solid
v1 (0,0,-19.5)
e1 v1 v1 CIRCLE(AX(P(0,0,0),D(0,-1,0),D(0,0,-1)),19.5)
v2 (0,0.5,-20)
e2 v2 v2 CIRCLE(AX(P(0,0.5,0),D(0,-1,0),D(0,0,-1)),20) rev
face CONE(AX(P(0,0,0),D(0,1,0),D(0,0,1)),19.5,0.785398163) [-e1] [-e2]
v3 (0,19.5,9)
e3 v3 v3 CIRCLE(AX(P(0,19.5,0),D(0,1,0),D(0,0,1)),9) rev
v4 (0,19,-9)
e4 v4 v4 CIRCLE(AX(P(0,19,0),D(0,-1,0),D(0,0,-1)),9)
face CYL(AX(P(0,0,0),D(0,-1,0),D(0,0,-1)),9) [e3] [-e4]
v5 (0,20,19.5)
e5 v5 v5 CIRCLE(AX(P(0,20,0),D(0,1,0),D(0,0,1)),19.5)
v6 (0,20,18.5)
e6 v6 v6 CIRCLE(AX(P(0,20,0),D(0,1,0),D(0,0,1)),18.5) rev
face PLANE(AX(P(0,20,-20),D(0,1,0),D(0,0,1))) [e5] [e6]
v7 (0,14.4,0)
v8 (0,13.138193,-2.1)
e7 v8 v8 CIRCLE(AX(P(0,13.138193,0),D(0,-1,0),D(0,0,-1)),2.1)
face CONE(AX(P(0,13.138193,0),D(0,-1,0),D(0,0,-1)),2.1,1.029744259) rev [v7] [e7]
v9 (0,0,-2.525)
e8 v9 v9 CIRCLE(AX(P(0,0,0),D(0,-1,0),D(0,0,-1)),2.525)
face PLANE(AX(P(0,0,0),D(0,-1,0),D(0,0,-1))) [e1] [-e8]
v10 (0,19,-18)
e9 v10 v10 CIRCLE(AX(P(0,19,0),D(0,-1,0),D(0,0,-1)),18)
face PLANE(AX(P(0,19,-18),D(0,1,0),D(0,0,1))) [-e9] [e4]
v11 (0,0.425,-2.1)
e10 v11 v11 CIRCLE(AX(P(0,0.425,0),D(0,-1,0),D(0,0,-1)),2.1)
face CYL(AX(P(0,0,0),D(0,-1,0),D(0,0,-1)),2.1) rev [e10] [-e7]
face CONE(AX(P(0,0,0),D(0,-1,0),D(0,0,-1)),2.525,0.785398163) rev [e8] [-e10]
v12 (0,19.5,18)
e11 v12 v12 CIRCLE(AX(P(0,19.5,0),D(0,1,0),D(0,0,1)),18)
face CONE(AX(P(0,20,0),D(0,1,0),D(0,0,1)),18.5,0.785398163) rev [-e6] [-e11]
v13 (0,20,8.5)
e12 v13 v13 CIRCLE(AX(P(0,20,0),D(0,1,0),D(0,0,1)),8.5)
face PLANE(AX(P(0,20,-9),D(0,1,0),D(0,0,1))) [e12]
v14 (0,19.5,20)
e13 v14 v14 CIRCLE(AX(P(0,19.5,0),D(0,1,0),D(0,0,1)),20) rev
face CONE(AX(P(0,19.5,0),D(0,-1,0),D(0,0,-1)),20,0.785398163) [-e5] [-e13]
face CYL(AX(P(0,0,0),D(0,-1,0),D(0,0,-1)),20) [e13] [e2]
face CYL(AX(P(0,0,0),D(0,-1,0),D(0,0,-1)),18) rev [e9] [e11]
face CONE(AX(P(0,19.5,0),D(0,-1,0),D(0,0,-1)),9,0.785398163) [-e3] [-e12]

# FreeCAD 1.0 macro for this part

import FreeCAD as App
import Part
import Sketcher
Q = App.Units.Quantity


def edges_at(feature, points):
    """Names of the edges that pass closest to the given points."""
    edges = feature.Shape.Edges
    near = lambda p: min(range(len(edges)), key=lambda i: edges[i].distToShape(Part.Vertex(*p))[0])
    return sorted({f"Edge{near(p) + 1}" for p in points})

doc = App.newDocument("Part")
body = doc.addObject("PartDesign::Body", "Body")

# Sketch on YZ plane
sketch1 = body.newObject("Sketcher::SketchObject", "Sketch")
sketch1.AttachmentSupport = (doc.getObject("YZ_Plane"), [""])
sketch1.MapMode = "FlatFace"
sketch1.addGeometry([
    Part.LineSegment(App.Vector(0, 0, 0), App.Vector(0, -20, 0)),  # 0
    Part.LineSegment(App.Vector(0, -20, 0), App.Vector(20, -20, 0)),  # 1
    Part.LineSegment(App.Vector(20, -20, 0), App.Vector(20, -18, 0)),  # 2
    Part.LineSegment(App.Vector(20, -18, 0), App.Vector(19, -18, 0)),  # 3
    Part.LineSegment(App.Vector(19, -18, 0), App.Vector(19, -9, 0)),  # 4
    Part.LineSegment(App.Vector(19, -9, 0), App.Vector(20, -9, 0)),  # 5
    Part.LineSegment(App.Vector(20, -9, 0), App.Vector(20, 0, 0)),  # 6
    Part.LineSegment(App.Vector(20, 0, 0), App.Vector(0, 0, 0)),  # 7
], False)
sketch1.addConstraint([
    Sketcher.Constraint("Coincident", 0, 2, 1, 1),
    Sketcher.Constraint("Coincident", 1, 2, 2, 1),
    Sketcher.Constraint("Coincident", 2, 2, 3, 1),
    Sketcher.Constraint("Coincident", 3, 2, 4, 1),
    Sketcher.Constraint("Coincident", 4, 2, 5, 1),
    Sketcher.Constraint("Coincident", 5, 2, 6, 1),
    Sketcher.Constraint("Coincident", 6, 2, 7, 1),
    Sketcher.Constraint("Coincident", 7, 2, 0, 1),
    Sketcher.Constraint("Vertical", 0),
    Sketcher.Constraint("Horizontal", 1),
    Sketcher.Constraint("Vertical", 2),
    Sketcher.Constraint("Horizontal", 3),
    Sketcher.Constraint("Vertical", 4),
    Sketcher.Constraint("Horizontal", 5),
    Sketcher.Constraint("Vertical", 6),
    Sketcher.Constraint("Horizontal", 7),
    Sketcher.Constraint("Coincident", 7, 2, -1, 1),
    Sketcher.Constraint("Vertical", 2, 2, 5, 2),
    Sketcher.Constraint("Equal", 7, 0),
    Sketcher.Constraint("Equal", 4, 6),
    Sketcher.Constraint("DistanceX", 1, 1, 1, 2, Q("20 mm")),
    Sketcher.Constraint("DistanceX", 3, 2, 3, 1, Q("1 mm")),
    Sketcher.Constraint("DistanceY", 2, 1, 2, 2, Q("2 mm")),
])
revolution = body.newObject("PartDesign::Revolution", "Revolution")
revolution.Profile = sketch1
revolution.ReferenceAxis = (sketch1, ["H_Axis"])
revolution.Angle = 360
doc.recompute()

chamfer = body.newObject("PartDesign::Chamfer", "Chamfer")
chamfer.Base = (revolution, edges_at(revolution, [
    (0, 20, 9),
    (0, 20, 18),
    (0, 20, 20),
    (0, 0, 20),
]))
chamfer.Size = 0.5

# Sketch on XZ plane
sketch2 = body.newObject("Sketcher::SketchObject", "Sketch001")
sketch2.AttachmentSupport = (doc.getObject("XZ_Plane"), [""])
sketch2.MapMode = "FlatFace"
sketch2.addGeometry(Part.Circle(App.Vector(0, 0, 0), App.Vector(0, 0, 1), 2.1), False)
sketch2.addConstraint([
    Sketcher.Constraint("Coincident", 0, 3, -1, 1),
    Sketcher.Constraint("Diameter", 0, Q("4.2 mm")),
])
doc.recompute()
hole = body.newObject("PartDesign::Hole", "Hole")
hole.Profile = sketch2
hole.ThreadType = "None"
hole.Diameter = 4.2
hole.DepthType = "Dimension"
hole.Depth = 13.138193
hole.DrillPoint = "Angled"
hole.DrillPointAngle = 118
hole.HoleCutType = "Countersink"
hole.HoleCutDiameter = 5.05
hole.HoleCutCountersinkAngle = 90

doc.recompute()
